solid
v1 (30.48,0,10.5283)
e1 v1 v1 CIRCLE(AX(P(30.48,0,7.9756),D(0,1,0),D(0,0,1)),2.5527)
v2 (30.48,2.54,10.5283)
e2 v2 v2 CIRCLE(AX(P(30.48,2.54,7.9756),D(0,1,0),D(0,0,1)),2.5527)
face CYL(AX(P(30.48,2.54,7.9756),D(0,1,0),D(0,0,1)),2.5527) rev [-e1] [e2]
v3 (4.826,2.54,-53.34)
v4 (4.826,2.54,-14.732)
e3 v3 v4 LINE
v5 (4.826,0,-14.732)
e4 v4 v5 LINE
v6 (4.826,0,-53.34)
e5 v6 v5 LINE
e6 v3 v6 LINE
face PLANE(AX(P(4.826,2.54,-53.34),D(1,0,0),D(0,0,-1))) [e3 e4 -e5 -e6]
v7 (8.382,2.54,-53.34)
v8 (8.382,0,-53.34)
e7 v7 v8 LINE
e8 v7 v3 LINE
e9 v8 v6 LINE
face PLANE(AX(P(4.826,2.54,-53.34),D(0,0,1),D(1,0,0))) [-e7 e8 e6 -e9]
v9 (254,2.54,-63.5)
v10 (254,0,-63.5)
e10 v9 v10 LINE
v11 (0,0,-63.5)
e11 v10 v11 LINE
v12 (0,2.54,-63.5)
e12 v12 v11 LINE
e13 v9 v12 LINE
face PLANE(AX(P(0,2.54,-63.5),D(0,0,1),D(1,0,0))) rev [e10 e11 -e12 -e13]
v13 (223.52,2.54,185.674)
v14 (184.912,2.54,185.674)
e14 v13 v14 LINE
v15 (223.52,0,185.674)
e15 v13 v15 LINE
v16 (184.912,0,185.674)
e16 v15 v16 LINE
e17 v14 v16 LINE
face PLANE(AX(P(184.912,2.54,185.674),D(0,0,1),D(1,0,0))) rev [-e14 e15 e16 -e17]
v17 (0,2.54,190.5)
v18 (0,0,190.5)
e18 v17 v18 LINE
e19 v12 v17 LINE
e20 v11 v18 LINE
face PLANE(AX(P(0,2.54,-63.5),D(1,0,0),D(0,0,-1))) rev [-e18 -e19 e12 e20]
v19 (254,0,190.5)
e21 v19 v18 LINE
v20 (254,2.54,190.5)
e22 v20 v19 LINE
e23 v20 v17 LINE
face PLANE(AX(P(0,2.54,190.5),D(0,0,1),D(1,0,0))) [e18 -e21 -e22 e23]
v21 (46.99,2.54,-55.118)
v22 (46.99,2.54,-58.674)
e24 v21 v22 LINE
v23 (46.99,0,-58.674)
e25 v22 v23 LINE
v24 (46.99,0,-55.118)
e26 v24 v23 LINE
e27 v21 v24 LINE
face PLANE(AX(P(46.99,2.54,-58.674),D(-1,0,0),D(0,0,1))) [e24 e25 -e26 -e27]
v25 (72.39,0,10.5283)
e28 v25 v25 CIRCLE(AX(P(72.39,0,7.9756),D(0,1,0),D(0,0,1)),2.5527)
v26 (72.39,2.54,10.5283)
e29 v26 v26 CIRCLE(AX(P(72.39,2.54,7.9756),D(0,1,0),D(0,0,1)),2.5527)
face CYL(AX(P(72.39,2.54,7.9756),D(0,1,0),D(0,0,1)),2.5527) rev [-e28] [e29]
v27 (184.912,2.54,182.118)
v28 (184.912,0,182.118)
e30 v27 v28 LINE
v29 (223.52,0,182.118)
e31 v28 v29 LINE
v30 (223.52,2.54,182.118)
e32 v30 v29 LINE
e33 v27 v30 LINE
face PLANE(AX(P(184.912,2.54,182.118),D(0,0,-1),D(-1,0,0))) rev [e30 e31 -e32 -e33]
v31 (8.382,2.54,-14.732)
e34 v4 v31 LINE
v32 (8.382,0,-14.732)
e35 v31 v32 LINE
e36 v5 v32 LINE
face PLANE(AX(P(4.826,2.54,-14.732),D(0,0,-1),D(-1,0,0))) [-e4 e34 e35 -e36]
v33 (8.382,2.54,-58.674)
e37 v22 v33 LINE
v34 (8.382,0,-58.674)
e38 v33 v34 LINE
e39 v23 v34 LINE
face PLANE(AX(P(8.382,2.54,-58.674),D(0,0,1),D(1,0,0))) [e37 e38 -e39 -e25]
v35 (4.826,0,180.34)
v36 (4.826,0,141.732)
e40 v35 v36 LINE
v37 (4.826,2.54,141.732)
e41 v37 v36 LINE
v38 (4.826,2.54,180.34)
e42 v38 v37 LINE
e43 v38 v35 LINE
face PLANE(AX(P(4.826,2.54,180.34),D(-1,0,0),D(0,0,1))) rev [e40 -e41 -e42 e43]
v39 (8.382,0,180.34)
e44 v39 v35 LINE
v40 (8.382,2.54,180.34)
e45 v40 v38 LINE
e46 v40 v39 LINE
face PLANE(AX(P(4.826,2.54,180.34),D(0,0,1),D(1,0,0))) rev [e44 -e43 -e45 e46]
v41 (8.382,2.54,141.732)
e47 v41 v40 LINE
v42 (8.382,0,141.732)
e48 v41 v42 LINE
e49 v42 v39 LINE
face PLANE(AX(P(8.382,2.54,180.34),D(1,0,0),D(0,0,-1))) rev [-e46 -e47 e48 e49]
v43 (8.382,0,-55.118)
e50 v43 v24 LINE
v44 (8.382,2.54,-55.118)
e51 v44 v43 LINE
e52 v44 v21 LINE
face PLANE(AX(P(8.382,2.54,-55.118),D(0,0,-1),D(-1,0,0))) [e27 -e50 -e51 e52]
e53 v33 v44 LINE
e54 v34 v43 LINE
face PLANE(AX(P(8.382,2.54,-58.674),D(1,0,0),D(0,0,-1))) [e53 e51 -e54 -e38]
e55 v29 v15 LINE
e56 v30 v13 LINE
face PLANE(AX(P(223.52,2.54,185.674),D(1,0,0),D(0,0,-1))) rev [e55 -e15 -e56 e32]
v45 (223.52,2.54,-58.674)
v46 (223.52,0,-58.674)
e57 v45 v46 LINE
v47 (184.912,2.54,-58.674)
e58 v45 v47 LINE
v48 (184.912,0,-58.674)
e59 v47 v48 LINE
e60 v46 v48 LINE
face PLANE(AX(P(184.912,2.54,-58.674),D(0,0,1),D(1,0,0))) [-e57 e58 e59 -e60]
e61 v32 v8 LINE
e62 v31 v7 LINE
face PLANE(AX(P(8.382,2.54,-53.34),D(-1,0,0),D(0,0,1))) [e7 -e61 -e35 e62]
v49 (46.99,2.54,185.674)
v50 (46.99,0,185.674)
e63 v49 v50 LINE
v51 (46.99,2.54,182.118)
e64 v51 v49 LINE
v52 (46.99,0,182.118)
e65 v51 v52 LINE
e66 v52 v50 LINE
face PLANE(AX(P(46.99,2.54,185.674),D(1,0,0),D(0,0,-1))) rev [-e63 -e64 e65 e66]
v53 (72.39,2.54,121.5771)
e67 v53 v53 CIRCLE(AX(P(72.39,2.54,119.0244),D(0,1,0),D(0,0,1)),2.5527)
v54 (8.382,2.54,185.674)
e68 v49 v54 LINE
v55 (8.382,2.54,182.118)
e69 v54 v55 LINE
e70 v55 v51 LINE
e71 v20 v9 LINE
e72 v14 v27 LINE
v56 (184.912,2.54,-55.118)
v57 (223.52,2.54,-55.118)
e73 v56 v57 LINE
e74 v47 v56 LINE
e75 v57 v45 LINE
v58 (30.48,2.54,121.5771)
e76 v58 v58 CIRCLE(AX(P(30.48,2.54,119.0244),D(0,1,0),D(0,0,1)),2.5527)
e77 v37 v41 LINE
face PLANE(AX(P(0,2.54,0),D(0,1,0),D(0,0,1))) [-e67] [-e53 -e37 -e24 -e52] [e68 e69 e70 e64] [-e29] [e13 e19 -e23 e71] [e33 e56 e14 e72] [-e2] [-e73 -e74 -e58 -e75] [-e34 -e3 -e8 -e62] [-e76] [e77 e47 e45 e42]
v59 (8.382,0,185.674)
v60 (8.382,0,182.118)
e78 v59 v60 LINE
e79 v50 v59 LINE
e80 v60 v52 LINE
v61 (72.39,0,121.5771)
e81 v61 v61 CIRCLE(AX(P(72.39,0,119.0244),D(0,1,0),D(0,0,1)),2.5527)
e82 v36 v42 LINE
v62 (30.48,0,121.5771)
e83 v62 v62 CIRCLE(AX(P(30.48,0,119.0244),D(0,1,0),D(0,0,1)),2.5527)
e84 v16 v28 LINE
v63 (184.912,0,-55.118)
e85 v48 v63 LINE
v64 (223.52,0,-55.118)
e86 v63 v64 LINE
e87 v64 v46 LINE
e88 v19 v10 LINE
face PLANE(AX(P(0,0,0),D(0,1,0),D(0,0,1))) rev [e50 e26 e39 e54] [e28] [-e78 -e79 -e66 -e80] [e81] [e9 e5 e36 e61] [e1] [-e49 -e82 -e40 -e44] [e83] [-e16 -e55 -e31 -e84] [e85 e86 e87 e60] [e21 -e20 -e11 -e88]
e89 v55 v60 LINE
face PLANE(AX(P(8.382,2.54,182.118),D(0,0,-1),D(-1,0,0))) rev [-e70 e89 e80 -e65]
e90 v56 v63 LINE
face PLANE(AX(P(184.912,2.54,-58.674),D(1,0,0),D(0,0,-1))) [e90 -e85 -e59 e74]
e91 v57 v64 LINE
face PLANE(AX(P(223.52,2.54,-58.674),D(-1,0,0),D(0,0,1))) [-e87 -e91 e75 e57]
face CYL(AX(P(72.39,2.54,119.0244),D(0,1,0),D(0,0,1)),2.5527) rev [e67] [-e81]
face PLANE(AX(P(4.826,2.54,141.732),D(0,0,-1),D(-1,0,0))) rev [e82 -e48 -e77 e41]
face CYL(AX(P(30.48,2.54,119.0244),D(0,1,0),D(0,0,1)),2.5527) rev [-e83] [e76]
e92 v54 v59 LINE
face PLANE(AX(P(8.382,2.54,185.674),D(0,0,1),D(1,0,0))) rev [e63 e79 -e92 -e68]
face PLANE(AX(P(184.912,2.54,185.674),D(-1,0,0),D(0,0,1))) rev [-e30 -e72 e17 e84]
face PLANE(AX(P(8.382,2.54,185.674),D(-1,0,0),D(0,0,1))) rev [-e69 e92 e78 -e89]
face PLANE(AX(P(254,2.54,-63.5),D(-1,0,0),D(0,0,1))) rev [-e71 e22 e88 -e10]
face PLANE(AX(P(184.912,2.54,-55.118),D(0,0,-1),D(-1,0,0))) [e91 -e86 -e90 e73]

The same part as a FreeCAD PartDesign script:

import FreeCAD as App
import Part
import Sketcher
from FreeCAD import Vector
Q = App.Units.Quantity


def add_polygon(sketch, points):
    """Adds a closed chain of lines whose ends are joined by coincident constraints."""
    first, n = sketch.GeometryCount, len(points)
    for a, b in zip(points, points[1:] + points[:1]):
        sketch.addGeometry(Part.LineSegment(App.Vector(*a, 0), App.Vector(*b, 0)), False)
    for i in range(n):
        sketch.addConstraint(Sketcher.Constraint("Coincident", first + i, 2, first + (i + 1) % n, 1))

doc = App.newDocument("Part")
body = doc.addObject("PartDesign::Body", "Body")

sketch1 = doc.addObject("Sketcher::SketchObject", "Sketch")
body.addObject(sketch1)
sketch1.AttachmentSupport = (doc.XZ_Plane, [""])
sketch1.MapMode = "FlatFace"
add_polygon(sketch1, [(0, -63.5), (0, 63.5), (254, 63.5), (254, -63.5)])
add_polygon(sketch1, [(8.382, -14.732), (4.826, -14.732), (4.826, -53.34), (8.382, -53.34)])
add_polygon(sketch1, [(46.99, -55.118), (8.382, -55.118), (8.382, -58.674), (46.99, -58.674)])
add_polygon(sketch1, [(223.52, -55.118), (184.912, -55.118), (184.912, -58.674), (223.52, -58.674)])
sketch1.addConstraint(Sketcher.Constraint("Vertical", 0))
sketch1.addConstraint(Sketcher.Constraint("Horizontal", 1))
sketch1.addConstraint(Sketcher.Constraint("Vertical", 2))
sketch1.addConstraint(Sketcher.Constraint("Horizontal", 3))
sketch1.addConstraint(Sketcher.Constraint("Horizontal", 4))
sketch1.addConstraint(Sketcher.Constraint("Vertical", 5))
sketch1.addConstraint(Sketcher.Constraint("Horizontal", 6))
sketch1.addConstraint(Sketcher.Constraint("Vertical", 7))
sketch1.addConstraint(Sketcher.Constraint("Horizontal", 8))
sketch1.addConstraint(Sketcher.Constraint("Vertical", 9))
sketch1.addConstraint(Sketcher.Constraint("Horizontal", 10))
sketch1.addConstraint(Sketcher.Constraint("Vertical", 11))
sketch1.addConstraint(Sketcher.Constraint("Horizontal", 12))
sketch1.addConstraint(Sketcher.Constraint("Vertical", 13))
sketch1.addConstraint(Sketcher.Constraint("Horizontal", 14))
sketch1.addConstraint(Sketcher.Constraint("Vertical", 15))
sketch1.addConstraint(Sketcher.Constraint("Symmetric", 0, 2, 3, 2, -1, 1))
sketch1.addConstraint(Sketcher.Constraint("Horizontal", 11, 2, 12, 2))
sketch1.addConstraint(Sketcher.Constraint("Horizontal", 10, 2, 13, 2))
sketch1.addConstraint(Sketcher.Constraint("Vertical", 7, 2, 8, 2))
sketch1.addConstraint(Sketcher.Constraint("Equal", 10, 12))
sketch1.addConstraint(Sketcher.Constraint("Equal", 14, 5))
sketch1.addConstraint(Sketcher.Constraint("Equal", 6, 9))
sketch1.addConstraint(Sketcher.Constraint("DistanceX", 1, 1, 1, 2, Q("10 in")))
sketch1.addConstraint(Sketcher.Constraint("DistanceY", 0, 1, 0, 2, Q("5 in")))
sketch1.addConstraint(Sketcher.Constraint("DistanceX", 4, 2, 4, 1, Q("0.14 in")))
sketch1.addConstraint(Sketcher.Constraint("DistanceX", 8, 2, 8, 1, Q("1.52 in")))
sketch1.addConstraint(Sketcher.Constraint("DistanceY", 5, 2, -1, 1, Q("2.1 in")))
sketch1.addConstraint(Sketcher.Constraint("DistanceX", -1, 1, 14, 2, Q("8.8 in")))
sketch1.addConstraint(Sketcher.Constraint("DistanceX", -1, 1, 4, 2, Q("0.19 in")))
sketch1.addConstraint(Sketcher.Constraint("DistanceY", 8, 2, -1, 1, Q("2.17 in")))
pad1 = doc.addObject("PartDesign::Pad", "Pad")
body.addObject(pad1)
pad1.Profile = sketch1
pad1.Length = Q("0.1 in")
pad1.Reversed = True

sketch2 = doc.addObject("Sketcher::SketchObject", "Sketch001")
body.addObject(sketch2)
sketch2.AttachmentSupport = (doc.XZ_Plane, [""])
sketch2.MapMode = "FlatFace"
sketch2.AttachmentOffset = App.Placement(Vector(0, 0, -0.1 * 25.4), App.Rotation())
sketch2.addGeometry(Part.Circle(Vector(30.48, 7.9756, 0), Vector(0, 0, 1), 2.5527), False)
sketch2.addGeometry(Part.Circle(Vector(72.39, 7.9756, 0), Vector(0, 0, 1), 2.5527), False)
sketch2.addConstraint(Sketcher.Constraint("Equal", 0, 1))
sketch2.addConstraint(Sketcher.Constraint("Horizontal", 0, 3, 1, 3))
sketch2.addConstraint(Sketcher.Constraint("Diameter", 0, Q("0.201 in")))
sketch2.addConstraint(Sketcher.Constraint("DistanceX", -1, 1, 0, 3, Q("1.2 in")))
sketch2.addConstraint(Sketcher.Constraint("DistanceX", -1, 1, 1, 3, Q("2.85 in")))
sketch2.addConstraint(Sketcher.Constraint("DistanceY", -1, 1, 0, 3, Q("0.314 in")))
doc.recompute()
hole = doc.addObject("PartDesign::Hole", "Hole")
body.addObject(hole)
hole.Profile = sketch2
hole.ThreadType = "None"
hole.Diameter = Q("0.201 in")
hole.DepthType = "ThroughAll"
hole.Reversed = True
doc.recompute()

datumplane = doc.addObject("PartDesign::Plane", "DatumPlane")
body.addObject(datumplane)
datumplane.AttachmentSupport = (doc.XY_Plane, [""])
datumplane.MapMode = "FlatFace"
datumplane.AttachmentOffset = App.Placement(Vector(0, 0, 2.5 * 25.4), App.Rotation())
mirrored = doc.addObject("PartDesign::Mirrored", "Mirrored")
body.addObject(mirrored)
mirrored.Originals = [pad1, hole]
mirrored.MirrorPlane = (datumplane, [""])
body.Tip = mirrored

doc.recompute()
